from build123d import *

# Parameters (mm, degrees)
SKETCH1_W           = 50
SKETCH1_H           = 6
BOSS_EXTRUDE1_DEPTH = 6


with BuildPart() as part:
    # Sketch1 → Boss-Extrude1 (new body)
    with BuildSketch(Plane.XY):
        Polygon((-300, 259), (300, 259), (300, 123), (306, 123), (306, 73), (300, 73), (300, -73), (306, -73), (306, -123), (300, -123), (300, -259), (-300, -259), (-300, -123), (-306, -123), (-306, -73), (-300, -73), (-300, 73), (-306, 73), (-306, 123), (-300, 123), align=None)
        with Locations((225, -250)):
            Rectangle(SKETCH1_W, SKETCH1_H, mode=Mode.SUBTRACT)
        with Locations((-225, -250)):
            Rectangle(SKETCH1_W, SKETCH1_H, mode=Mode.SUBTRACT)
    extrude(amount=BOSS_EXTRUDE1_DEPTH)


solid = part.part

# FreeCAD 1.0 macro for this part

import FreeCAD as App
import Part
import Sketcher

V = App.Vector


def add_polygon(sketch, points):
    """Adds a closed chain of lines whose ends are joined by coincident constraints."""
    first, n = sketch.GeometryCount, len(points)
    for a, b in zip(points, points[1:] + points[:1]):
        sketch.addGeometry(Part.LineSegment(App.Vector(*a, 0), App.Vector(*b, 0)), False)
    for i in range(n):
        sketch.addConstraint(Sketcher.Constraint("Coincident", first + i, 2, first + (i + 1) % n, 1))

doc = App.newDocument("Part")
params = doc.addObject("Spreadsheet::Sheet", "Params")
for row, (alias, value) in enumerate([
    ("sketch1_width", "600 mm"),
    ("sketch1_width2", "6 mm"),
    ("sketch1_width3", "50 mm"),
    ("sketch1_height", "136 mm"),
    ("sketch1_height2", "146 mm"),
    ("pad1_length", "6 mm"),
], start=1):
    params.set(f"A{row}", alias)
    params.set(f"B{row}", "=" + value)
    params.setAlias(f"B{row}", alias)

body = doc.addObject("PartDesign::Body", "Body")

sketch1 = body.newObject("Sketcher::SketchObject", "Sketch")
sketch1.AttachmentSupport = (doc.getObject("XY_Plane"), [""])
sketch1.MapMode = "FlatFace"
add_polygon(sketch1, [(300, 259), (-300, 259), (-300, 123), (-306, 123), (-306, 73), (-300, 73), (-300, -73), (-306, -73), (-306, -123), (-300, -123), (-300, -259), (300, -259), (300, -123), (306, -123), (306, -73), (300, -73), (300, 73), (306, 73), (306, 123), (300, 123)])
add_polygon(sketch1, [(200, -253), (200, -247), (250, -247), (250, -253)])
add_polygon(sketch1, [(-250, -253), (-250, -247), (-200, -247), (-200, -253)])
sketch1.addConstraint(Sketcher.Constraint("Horizontal", 0))
sketch1.addConstraint(Sketcher.Constraint("Vertical", 1))
sketch1.addConstraint(Sketcher.Constraint("Horizontal", 2))
sketch1.addConstraint(Sketcher.Constraint("Vertical", 3))
sketch1.addConstraint(Sketcher.Constraint("Horizontal", 4))
sketch1.addConstraint(Sketcher.Constraint("Vertical", 5))
sketch1.addConstraint(Sketcher.Constraint("Horizontal", 6))
sketch1.addConstraint(Sketcher.Constraint("Vertical", 7))
sketch1.addConstraint(Sketcher.Constraint("Horizontal", 8))
sketch1.addConstraint(Sketcher.Constraint("Vertical", 9))
sketch1.addConstraint(Sketcher.Constraint("Horizontal", 10))
sketch1.addConstraint(Sketcher.Constraint("Vertical", 11))
sketch1.addConstraint(Sketcher.Constraint("Horizontal", 12))
sketch1.addConstraint(Sketcher.Constraint("Vertical", 13))
sketch1.addConstraint(Sketcher.Constraint("Horizontal", 14))
sketch1.addConstraint(Sketcher.Constraint("Vertical", 15))
sketch1.addConstraint(Sketcher.Constraint("Horizontal", 16))
sketch1.addConstraint(Sketcher.Constraint("Vertical", 17))
sketch1.addConstraint(Sketcher.Constraint("Horizontal", 18))
sketch1.addConstraint(Sketcher.Constraint("Vertical", 19))
sketch1.addConstraint(Sketcher.Constraint("Vertical", 20))
sketch1.addConstraint(Sketcher.Constraint("Horizontal", 21))
sketch1.addConstraint(Sketcher.Constraint("Vertical", 22))
sketch1.addConstraint(Sketcher.Constraint("Horizontal", 23))
sketch1.addConstraint(Sketcher.Constraint("Vertical", 24))
sketch1.addConstraint(Sketcher.Constraint("Horizontal", 25))
sketch1.addConstraint(Sketcher.Constraint("Vertical", 26))
sketch1.addConstraint(Sketcher.Constraint("Horizontal", 27))
sketch1.addConstraint(Sketcher.Constraint("Symmetric", 0, 2, 10, 2, -1, 1))
sketch1.addConstraint(Sketcher.Constraint("Symmetric", 2, 2, 12, 2, -1, 1))
sketch1.addConstraint(Sketcher.Constraint("Symmetric", 4, 2, 14, 2, -1, 1))
sketch1.addConstraint(Sketcher.Constraint("Symmetric", 6, 2, 16, 2, -1, 1))
sketch1.addConstraint(Sketcher.Constraint("Symmetric", 8, 2, 18, 2, -1, 1))
sketch1.addConstraint(Sketcher.Constraint("Symmetric", 8, 2, 11, 2, -2))
sketch1.addConstraint(Sketcher.Constraint("Symmetric", 6, 2, 13, 2, -2))
sketch1.addConstraint(Sketcher.Constraint("Symmetric", 21, 2, 24, 2, -2))
sketch1.addConstraint(Sketcher.Constraint("Symmetric", 23, 2, 26, 2, -2))
sketch1.addConstraint(Sketcher.Constraint("Vertical", 1, 2, 4, 2))
sketch1.addConstraint(Sketcher.Constraint("Equal", 27, 3))
sketch1.addConstraint(Sketcher.Constraint("Equal", 18, 20))
sketch1.addConstraint(Sketcher.Constraint("DistanceX", 0, 2, 0, 1, 600.0))
sketch1.addConstraint(Sketcher.Constraint("DistanceX", 2, 2, 2, 1, 6.0))
sketch1.addConstraint(Sketcher.Constraint("DistanceX", 21, 1, 21, 2, 50.0))
sketch1.addConstraint(Sketcher.Constraint("DistanceY", 1, 2, 1, 1, 136.0))
sketch1.addConstraint(Sketcher.Constraint("DistanceY", 5, 2, 5, 1, 146.0))
sketch1.addConstraint(Sketcher.Constraint("DistanceX", -1, 1, 20, 2, 200.0))
sketch1.addConstraint(Sketcher.Constraint("DistanceY", 20, 2, -1, 1, 247.0))
sketch1.setExpression("Constraints[68]", "Params.sketch1_width")
sketch1.setExpression("Constraints[69]", "Params.sketch1_width2")
sketch1.setExpression("Constraints[70]", "Params.sketch1_width3")
sketch1.setExpression("Constraints[71]", "Params.sketch1_height")
sketch1.setExpression("Constraints[72]", "Params.sketch1_height2")
pad1 = body.newObject("PartDesign::Pad", "Pad")
pad1.Profile = sketch1
pad1.setExpression("Length", "Params.pad1_length")

doc.recompute()
